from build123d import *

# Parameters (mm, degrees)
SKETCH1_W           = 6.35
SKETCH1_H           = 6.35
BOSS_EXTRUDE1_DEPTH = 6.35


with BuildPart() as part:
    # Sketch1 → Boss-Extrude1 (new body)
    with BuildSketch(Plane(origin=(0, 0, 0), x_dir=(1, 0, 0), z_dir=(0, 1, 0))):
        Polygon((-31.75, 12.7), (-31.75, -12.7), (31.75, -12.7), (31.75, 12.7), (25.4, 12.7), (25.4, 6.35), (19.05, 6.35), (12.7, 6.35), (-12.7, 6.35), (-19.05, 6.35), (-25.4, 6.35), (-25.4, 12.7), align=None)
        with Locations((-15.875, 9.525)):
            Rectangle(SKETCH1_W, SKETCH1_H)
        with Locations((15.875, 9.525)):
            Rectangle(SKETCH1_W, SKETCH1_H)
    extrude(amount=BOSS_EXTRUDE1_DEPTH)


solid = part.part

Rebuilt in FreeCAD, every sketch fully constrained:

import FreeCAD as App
import Part
import Sketcher
from FreeCAD import Vector
Q = App.Units.Quantity

doc = App.newDocument("Part")
params = doc.addObject("Spreadsheet::Sheet", "Params")
for row, (alias, value) in enumerate([
    ("sketch1_width", "1 in"),
    ("sketch1_width2", "2.5 in"),
    ("pad1_length", "0.25 in"),
], start=1):
    params.set(f"A{row}", alias)
    params.set(f"B{row}", "=" + value)
    params.setAlias(f"B{row}", alias)

body = doc.addObject("PartDesign::Body", "Body")

# Sketch on XZ plane
sketch1 = body.newObject("Sketcher::SketchObject", "Sketch")
sketch1.AttachmentSupport = (doc.getObject("XZ_Plane"), [""])
sketch1.MapMode = "FlatFace"
sketch1.addGeometry([
    Part.LineSegment(Vector(-32, -13, 0), Vector(-32, 13, 0)),  # 0
    Part.LineSegment(Vector(-32, 13, 0), Vector(32, 13, 0)),  # 1
    Part.LineSegment(Vector(32, 13, 0), Vector(32, -13, 0)),  # 2
    Part.LineSegment(Vector(32, -13, 0), Vector(25, -13, 0)),  # 3
    Part.LineSegment(Vector(25, -13, 0), Vector(25, -6, 0)),  # 4
    Part.LineSegment(Vector(25, -6, 0), Vector(19, -6, 0)),  # 5
    Part.LineSegment(Vector(19, -6, 0), Vector(19, -13, 0)),  # 6
    Part.LineSegment(Vector(19, -13, 0), Vector(13, -13, 0)),  # 7
    Part.LineSegment(Vector(13, -13, 0), Vector(13, -6, 0)),  # 8
    Part.LineSegment(Vector(13, -6, 0), Vector(-13, -6, 0)),  # 9
    Part.LineSegment(Vector(-13, -6, 0), Vector(-13, -13, 0)),  # 10
    Part.LineSegment(Vector(-13, -13, 0), Vector(-19, -13, 0)),  # 11
    Part.LineSegment(Vector(-19, -13, 0), Vector(-19, -6, 0)),  # 12
    Part.LineSegment(Vector(-19, -6, 0), Vector(-25, -6, 0)),  # 13
    Part.LineSegment(Vector(-25, -6, 0), Vector(-25, -13, 0)),  # 14
    Part.LineSegment(Vector(-25, -13, 0), Vector(-32, -13, 0)),  # 15
], False)
sketch1.addConstraint([
    Sketcher.Constraint("Coincident", 0, 2, 1, 1),
    Sketcher.Constraint("Coincident", 1, 2, 2, 1),
    Sketcher.Constraint("Coincident", 2, 2, 3, 1),
    Sketcher.Constraint("Coincident", 3, 2, 4, 1),
    Sketcher.Constraint("Coincident", 4, 2, 5, 1),
    Sketcher.Constraint("Coincident", 5, 2, 6, 1),
    Sketcher.Constraint("Coincident", 6, 2, 7, 1),
    Sketcher.Constraint("Coincident", 7, 2, 8, 1),
    Sketcher.Constraint("Coincident", 8, 2, 9, 1),
    Sketcher.Constraint("Coincident", 9, 2, 10, 1),
    Sketcher.Constraint("Coincident", 10, 2, 11, 1),
    Sketcher.Constraint("Coincident", 11, 2, 12, 1),
    Sketcher.Constraint("Coincident", 12, 2, 13, 1),
    Sketcher.Constraint("Coincident", 13, 2, 14, 1),
    Sketcher.Constraint("Coincident", 14, 2, 15, 1),
    Sketcher.Constraint("Coincident", 15, 2, 0, 1),
    Sketcher.Constraint("Vertical", 0),
    Sketcher.Constraint("Horizontal", 1),
    Sketcher.Constraint("Vertical", 2),
    Sketcher.Constraint("Horizontal", 3),
    Sketcher.Constraint("Vertical", 4),
    Sketcher.Constraint("Horizontal", 5),
    Sketcher.Constraint("Vertical", 6),
    Sketcher.Constraint("Horizontal", 7),
    Sketcher.Constraint("Vertical", 8),
    Sketcher.Constraint("Horizontal", 9),
    Sketcher.Constraint("Vertical", 10),
    Sketcher.Constraint("Horizontal", 11),
    Sketcher.Constraint("Vertical", 12),
    Sketcher.Constraint("Horizontal", 13),
    Sketcher.Constraint("Vertical", 14),
    Sketcher.Constraint("Horizontal", 15),
    Sketcher.Constraint("Symmetric", 0, 2, 2, 2, -1, 1),
    Sketcher.Constraint("Symmetric", 7, 2, 10, 2, -2),
    Sketcher.Constraint("Symmetric", 5, 2, 12, 2, -2),
    Sketcher.Constraint("Symmetric", 3, 2, 14, 2, -2),
    Sketcher.Constraint("Horizontal", 3, 2, 6, 2),
    Sketcher.Constraint("Horizontal", 5, 2, 8, 2),
    Sketcher.Constraint("Equal", 3, 5),
    Sketcher.Constraint("Equal", 5, 7),
    Sketcher.Constraint("Equal", 9, 0),
    Sketcher.Constraint("Equal", 15, 4),
    Sketcher.Constraint("DistanceX", 9, 2, 9, 1, Q("1 in")),
    Sketcher.Constraint("DistanceX", 1, 1, 1, 2, Q("2.5 in")),
])
sketch1.setExpression("Constraints[42]", "Params.sketch1_width")
sketch1.setExpression("Constraints[43]", "Params.sketch1_width2")
pad1 = body.newObject("PartDesign::Pad", "Pad")
pad1.Profile = sketch1
pad1.setExpression("Length", "Params.pad1_length")
pad1.Reversed = True

doc.recompute()
